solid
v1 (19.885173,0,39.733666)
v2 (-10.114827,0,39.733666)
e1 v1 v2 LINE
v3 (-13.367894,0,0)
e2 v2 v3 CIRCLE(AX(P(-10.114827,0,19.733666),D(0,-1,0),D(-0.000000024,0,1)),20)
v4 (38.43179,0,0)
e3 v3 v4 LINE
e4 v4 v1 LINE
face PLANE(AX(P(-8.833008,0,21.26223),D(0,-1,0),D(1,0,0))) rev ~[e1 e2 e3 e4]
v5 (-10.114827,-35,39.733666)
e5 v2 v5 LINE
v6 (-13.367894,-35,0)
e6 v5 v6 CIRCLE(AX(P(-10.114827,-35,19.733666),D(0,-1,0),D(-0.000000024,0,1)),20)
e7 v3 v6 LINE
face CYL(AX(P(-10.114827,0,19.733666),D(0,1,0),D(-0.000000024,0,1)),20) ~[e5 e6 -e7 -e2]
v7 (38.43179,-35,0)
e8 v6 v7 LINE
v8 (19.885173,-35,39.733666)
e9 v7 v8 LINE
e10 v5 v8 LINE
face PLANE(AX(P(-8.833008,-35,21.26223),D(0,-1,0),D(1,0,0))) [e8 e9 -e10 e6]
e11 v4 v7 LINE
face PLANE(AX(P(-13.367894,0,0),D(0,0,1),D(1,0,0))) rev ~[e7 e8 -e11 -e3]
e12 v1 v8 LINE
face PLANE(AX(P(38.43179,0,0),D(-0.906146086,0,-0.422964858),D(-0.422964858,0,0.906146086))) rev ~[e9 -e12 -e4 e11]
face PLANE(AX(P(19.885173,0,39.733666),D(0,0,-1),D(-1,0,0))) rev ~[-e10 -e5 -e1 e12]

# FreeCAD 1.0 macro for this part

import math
import FreeCAD as App
import Part
import Sketcher

V = App.Vector

doc = App.newDocument("Part")
body = doc.addObject("PartDesign::Body", "Body")

# Sketch on XZ plane
sketch1 = body.newObject("Sketcher::SketchObject", "Sketch")
sketch1.AttachmentSupport = (doc.getObject("XZ_Plane"), [""])
sketch1.MapMode = "FlatFace"
sketch1.addGeometry([
    Part.ArcOfCircle(Part.Circle(V(-10, 20, 0), V(0, 0, 1), 20), math.radians(90), math.radians(261)),
    Part.LineSegment(V(-13, 0, 0), V(38, 0, 0)),
    Part.LineSegment(V(38, 0, 0), V(20, 40, 0)),
    Part.LineSegment(V(20, 40, 0), V(-10, 40, 0)),
], False)
sketch1.addConstraint([
    Sketcher.Constraint("Coincident", 0, 2, 1, 1),
    Sketcher.Constraint("Coincident", 1, 2, 2, 1),
    Sketcher.Constraint("Coincident", 2, 2, 3, 1),
    Sketcher.Constraint("Tangent", 3, 2, 0, 1),
    Sketcher.Constraint("Horizontal", 1),
    Sketcher.Constraint("Horizontal", 3),
    Sketcher.Constraint("PointOnObject", 0, 2, -1),
    Sketcher.Constraint("Radius", 0, 20.0),
    Sketcher.Constraint("DistanceX", 3, 2, 3, 1, 30.0),
    Sketcher.Constraint("DistanceX", 1, 1, 1, 2, 51.799684),
    Sketcher.Constraint("DistanceX", -1, 1, 1, 2, 38.43179),
    Sketcher.Constraint("Distance", 2, 43.849073),
])
pad1 = body.newObject("PartDesign::Pad", "Pad")
pad1.Profile = sketch1
pad1.Length = 35

# Sketch on XY plane
sketch2 = body.newObject("Sketcher::SketchObject", "Sketch001")
sketch2.AttachmentSupport = (doc.getObject("XY_Plane"), [""])
sketch2.MapMode = "FlatFace"
sketch2.AttachmentOffset = App.Placement(V(0, 0, 39.733666), App.Rotation())
sketch2.addGeometry([
    Part.LineSegment(V(0, 0, 0), V(0, -35, 0)),
    Part.LineSegment(V(0, -35, 0), V(10, -35, 0)),
    Part.LineSegment(V(10, -35, 0), V(10, 0, 0)),
    Part.LineSegment(V(10, 0, 0), V(0, 0, 0)),
], False)
sketch2.addConstraint([
    Sketcher.Constraint("Coincident", 0, 2, 1, 1),
    Sketcher.Constraint("Coincident", 1, 2, 2, 1),
    Sketcher.Constraint("Coincident", 2, 2, 3, 1),
    Sketcher.Constraint("Coincident", 3, 2, 0, 1),
    Sketcher.Constraint("Vertical", 0),
    Sketcher.Constraint("Horizontal", 1),
    Sketcher.Constraint("Vertical", 2),
    Sketcher.Constraint("Horizontal", 3),
    Sketcher.Constraint("Coincident", 3, 2, -1, 1),
    Sketcher.Constraint("DistanceY", 0, 2, 0, 1, 35.0),
    Sketcher.Constraint("DistanceX", 1, 1, 1, 2, 9.970975),
])
pad2 = body.newObject("PartDesign::Pad", "Pad001")
pad2.Profile = sketch2
pad2.Length = 8
pad2.Reversed = True

doc.recompute()
